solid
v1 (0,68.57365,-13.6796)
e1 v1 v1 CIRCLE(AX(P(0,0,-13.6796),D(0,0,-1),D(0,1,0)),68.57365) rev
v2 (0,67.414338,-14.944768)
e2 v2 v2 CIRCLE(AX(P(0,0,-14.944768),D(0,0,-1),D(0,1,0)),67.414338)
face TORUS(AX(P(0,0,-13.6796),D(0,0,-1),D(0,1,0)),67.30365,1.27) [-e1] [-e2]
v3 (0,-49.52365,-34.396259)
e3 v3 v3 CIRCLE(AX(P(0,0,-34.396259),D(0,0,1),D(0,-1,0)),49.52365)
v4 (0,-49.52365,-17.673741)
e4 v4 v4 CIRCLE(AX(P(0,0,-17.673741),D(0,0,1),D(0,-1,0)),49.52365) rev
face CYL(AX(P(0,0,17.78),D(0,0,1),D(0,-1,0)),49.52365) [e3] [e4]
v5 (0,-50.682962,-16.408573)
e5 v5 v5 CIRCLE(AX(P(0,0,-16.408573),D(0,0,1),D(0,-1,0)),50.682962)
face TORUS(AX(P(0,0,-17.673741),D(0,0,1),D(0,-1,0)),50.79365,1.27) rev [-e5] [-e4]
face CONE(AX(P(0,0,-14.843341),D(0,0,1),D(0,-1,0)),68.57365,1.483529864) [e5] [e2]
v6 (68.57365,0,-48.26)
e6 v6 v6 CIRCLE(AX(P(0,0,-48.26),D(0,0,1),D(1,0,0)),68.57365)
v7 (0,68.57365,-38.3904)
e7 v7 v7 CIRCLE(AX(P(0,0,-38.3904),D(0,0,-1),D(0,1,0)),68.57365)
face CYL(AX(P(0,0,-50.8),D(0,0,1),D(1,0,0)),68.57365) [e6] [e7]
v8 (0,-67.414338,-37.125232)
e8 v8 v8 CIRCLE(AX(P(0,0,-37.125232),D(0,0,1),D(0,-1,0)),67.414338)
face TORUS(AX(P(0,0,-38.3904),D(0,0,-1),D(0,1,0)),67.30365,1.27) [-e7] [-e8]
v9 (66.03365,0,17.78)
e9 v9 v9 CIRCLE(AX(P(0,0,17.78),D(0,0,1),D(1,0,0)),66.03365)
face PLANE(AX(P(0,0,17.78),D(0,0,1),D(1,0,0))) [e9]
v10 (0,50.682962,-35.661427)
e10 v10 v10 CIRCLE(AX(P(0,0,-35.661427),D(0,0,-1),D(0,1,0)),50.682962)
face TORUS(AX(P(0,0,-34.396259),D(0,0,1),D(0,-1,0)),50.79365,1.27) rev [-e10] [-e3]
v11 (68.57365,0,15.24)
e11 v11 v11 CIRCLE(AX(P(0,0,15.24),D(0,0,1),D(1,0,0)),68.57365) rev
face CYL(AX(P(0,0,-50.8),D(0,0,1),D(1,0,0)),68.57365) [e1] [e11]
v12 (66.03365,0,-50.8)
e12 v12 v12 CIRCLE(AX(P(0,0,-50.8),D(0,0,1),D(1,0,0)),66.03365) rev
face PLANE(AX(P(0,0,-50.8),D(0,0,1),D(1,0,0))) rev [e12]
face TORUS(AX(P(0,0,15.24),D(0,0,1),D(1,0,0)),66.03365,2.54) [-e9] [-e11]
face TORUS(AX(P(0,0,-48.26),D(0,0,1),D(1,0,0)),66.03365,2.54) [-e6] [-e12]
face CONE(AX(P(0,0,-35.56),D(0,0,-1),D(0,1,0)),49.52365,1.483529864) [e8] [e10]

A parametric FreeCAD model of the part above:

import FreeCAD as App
import Part
import Sketcher

V = App.Vector
Q = App.Units.Quantity


def edges_at(feature, points):
    """Names of the edges that pass closest to the given points."""
    edges = feature.Shape.Edges
    near = lambda p: min(range(len(edges)), key=lambda i: edges[i].distToShape(Part.Vertex(*p))[0])
    return sorted({f"Edge{near(p) + 1}" for p in points})

doc = App.newDocument("Part")
params = doc.addObject("Spreadsheet::Sheet", "Params")
for row, (alias, value) in enumerate([
    ("pad1_length", "0.7 in"),
    ("pad1_length2", "2 in"),
    ("sketch2_height", "0.75 in"),
    ("groove_angle", "360 deg"),
    ("fillet_radius", "0.05 in"),
    ("fillet2_radius", "0.1 in"),
], start=1):
    params.set(f"A{row}", alias)
    params.set(f"B{row}", "=" + value)
    params.setAlias(f"B{row}", alias)

body = doc.addObject("PartDesign::Body", "Body")

# Sketch on XY plane
sketch1 = doc.addObject("Sketcher::SketchObject", "Sketch")
body.addObject(sketch1)
sketch1.AttachmentSupport = (doc.XY_Plane, [""])
sketch1.MapMode = "FlatFace"
sketch1.addGeometry(Part.Circle(V(0, 0, 0), V(0, 0, 1), 69), False)
sketch1.addConstraint([
    Sketcher.Constraint("Coincident", 0, 3, -1, 1),
    Sketcher.Constraint("Diameter", 0, Q("5.3995 in")),
])
pad1 = doc.addObject("PartDesign::Pad", "Pad")
body.addObject(pad1)
pad1.Profile = sketch1
pad1.Type = "TwoLengths"
pad1.setExpression("Length", "Params.pad1_length")
pad1.setExpression("Length2", "Params.pad1_length2")

# Sketch on YZ plane
sketch2 = doc.addObject("Sketcher::SketchObject", "Sketch001")
body.addObject(sketch2)
sketch2.AttachmentSupport = (doc.YZ_Plane, [""])
sketch2.MapMode = "FlatFace"
sketch2.addGeometry([
    Part.LineSegment(V(50, -17, 0), V(50, -36, 0)),
    Part.LineSegment(V(50, -36, 0), V(69, -37, 0)),
    Part.LineSegment(V(69, -37, 0), V(69, -15, 0)),
    Part.LineSegment(V(69, -15, 0), V(50, -17, 0)),
], False)
sketch2.addConstraint([
    Sketcher.Constraint("Coincident", 0, 2, 1, 1),
    Sketcher.Constraint("Coincident", 1, 2, 2, 1),
    Sketcher.Constraint("Coincident", 2, 2, 3, 1),
    Sketcher.Constraint("Coincident", 3, 2, 0, 1),
    Sketcher.Constraint("Vertical", 0),
    Sketcher.Constraint("Vertical", 2),
    Sketcher.Constraint("Equal", 1, 3),
    Sketcher.Constraint("Angle", 1, Q("-5 deg")),
    Sketcher.Constraint("DistanceY", 0, 2, 0, 1, Q("0.75 in")),
    Sketcher.Constraint("DistanceY", 0, 2, -1, 1, Q("1.4 in")),
    Sketcher.Constraint("DistanceX", 0, 2, 1, 2, Q("0.75 in")),
    Sketcher.Constraint("DistanceX", -1, 1, 0, 2, 49.52365),
])
sketch2.setExpression("Constraints[8]", "Params.sketch2_height")
groove = doc.addObject("PartDesign::Groove", "Groove")
body.addObject(groove)
groove.Profile = sketch2
groove.ReferenceAxis = (sketch2, ["V_Axis"])
groove.setExpression("Angle", "Params.groove_angle")
doc.recompute()

fillet = doc.addObject("PartDesign::Fillet", "Fillet")
body.addObject(fillet)
fillet.Base = (groove, edges_at(groove, [
    (-48.489, -48.489, -14.843),
    (-48.489, -48.489, -37.227),
    (0, -49.524, -35.56),
    (0, -49.524, -16.51),
]))
fillet.setExpression("Radius", "Params.fillet_radius")
doc.recompute()

fillet2 = doc.addObject("PartDesign::Fillet", "Fillet001")
body.addObject(fillet2)
fillet2.Base = (fillet, edges_at(fillet, [(-68.574, 0, 17.78), (-68.574, 0, -50.8)]))
fillet2.setExpression("Radius", "Params.fillet2_radius")

doc.recompute()
